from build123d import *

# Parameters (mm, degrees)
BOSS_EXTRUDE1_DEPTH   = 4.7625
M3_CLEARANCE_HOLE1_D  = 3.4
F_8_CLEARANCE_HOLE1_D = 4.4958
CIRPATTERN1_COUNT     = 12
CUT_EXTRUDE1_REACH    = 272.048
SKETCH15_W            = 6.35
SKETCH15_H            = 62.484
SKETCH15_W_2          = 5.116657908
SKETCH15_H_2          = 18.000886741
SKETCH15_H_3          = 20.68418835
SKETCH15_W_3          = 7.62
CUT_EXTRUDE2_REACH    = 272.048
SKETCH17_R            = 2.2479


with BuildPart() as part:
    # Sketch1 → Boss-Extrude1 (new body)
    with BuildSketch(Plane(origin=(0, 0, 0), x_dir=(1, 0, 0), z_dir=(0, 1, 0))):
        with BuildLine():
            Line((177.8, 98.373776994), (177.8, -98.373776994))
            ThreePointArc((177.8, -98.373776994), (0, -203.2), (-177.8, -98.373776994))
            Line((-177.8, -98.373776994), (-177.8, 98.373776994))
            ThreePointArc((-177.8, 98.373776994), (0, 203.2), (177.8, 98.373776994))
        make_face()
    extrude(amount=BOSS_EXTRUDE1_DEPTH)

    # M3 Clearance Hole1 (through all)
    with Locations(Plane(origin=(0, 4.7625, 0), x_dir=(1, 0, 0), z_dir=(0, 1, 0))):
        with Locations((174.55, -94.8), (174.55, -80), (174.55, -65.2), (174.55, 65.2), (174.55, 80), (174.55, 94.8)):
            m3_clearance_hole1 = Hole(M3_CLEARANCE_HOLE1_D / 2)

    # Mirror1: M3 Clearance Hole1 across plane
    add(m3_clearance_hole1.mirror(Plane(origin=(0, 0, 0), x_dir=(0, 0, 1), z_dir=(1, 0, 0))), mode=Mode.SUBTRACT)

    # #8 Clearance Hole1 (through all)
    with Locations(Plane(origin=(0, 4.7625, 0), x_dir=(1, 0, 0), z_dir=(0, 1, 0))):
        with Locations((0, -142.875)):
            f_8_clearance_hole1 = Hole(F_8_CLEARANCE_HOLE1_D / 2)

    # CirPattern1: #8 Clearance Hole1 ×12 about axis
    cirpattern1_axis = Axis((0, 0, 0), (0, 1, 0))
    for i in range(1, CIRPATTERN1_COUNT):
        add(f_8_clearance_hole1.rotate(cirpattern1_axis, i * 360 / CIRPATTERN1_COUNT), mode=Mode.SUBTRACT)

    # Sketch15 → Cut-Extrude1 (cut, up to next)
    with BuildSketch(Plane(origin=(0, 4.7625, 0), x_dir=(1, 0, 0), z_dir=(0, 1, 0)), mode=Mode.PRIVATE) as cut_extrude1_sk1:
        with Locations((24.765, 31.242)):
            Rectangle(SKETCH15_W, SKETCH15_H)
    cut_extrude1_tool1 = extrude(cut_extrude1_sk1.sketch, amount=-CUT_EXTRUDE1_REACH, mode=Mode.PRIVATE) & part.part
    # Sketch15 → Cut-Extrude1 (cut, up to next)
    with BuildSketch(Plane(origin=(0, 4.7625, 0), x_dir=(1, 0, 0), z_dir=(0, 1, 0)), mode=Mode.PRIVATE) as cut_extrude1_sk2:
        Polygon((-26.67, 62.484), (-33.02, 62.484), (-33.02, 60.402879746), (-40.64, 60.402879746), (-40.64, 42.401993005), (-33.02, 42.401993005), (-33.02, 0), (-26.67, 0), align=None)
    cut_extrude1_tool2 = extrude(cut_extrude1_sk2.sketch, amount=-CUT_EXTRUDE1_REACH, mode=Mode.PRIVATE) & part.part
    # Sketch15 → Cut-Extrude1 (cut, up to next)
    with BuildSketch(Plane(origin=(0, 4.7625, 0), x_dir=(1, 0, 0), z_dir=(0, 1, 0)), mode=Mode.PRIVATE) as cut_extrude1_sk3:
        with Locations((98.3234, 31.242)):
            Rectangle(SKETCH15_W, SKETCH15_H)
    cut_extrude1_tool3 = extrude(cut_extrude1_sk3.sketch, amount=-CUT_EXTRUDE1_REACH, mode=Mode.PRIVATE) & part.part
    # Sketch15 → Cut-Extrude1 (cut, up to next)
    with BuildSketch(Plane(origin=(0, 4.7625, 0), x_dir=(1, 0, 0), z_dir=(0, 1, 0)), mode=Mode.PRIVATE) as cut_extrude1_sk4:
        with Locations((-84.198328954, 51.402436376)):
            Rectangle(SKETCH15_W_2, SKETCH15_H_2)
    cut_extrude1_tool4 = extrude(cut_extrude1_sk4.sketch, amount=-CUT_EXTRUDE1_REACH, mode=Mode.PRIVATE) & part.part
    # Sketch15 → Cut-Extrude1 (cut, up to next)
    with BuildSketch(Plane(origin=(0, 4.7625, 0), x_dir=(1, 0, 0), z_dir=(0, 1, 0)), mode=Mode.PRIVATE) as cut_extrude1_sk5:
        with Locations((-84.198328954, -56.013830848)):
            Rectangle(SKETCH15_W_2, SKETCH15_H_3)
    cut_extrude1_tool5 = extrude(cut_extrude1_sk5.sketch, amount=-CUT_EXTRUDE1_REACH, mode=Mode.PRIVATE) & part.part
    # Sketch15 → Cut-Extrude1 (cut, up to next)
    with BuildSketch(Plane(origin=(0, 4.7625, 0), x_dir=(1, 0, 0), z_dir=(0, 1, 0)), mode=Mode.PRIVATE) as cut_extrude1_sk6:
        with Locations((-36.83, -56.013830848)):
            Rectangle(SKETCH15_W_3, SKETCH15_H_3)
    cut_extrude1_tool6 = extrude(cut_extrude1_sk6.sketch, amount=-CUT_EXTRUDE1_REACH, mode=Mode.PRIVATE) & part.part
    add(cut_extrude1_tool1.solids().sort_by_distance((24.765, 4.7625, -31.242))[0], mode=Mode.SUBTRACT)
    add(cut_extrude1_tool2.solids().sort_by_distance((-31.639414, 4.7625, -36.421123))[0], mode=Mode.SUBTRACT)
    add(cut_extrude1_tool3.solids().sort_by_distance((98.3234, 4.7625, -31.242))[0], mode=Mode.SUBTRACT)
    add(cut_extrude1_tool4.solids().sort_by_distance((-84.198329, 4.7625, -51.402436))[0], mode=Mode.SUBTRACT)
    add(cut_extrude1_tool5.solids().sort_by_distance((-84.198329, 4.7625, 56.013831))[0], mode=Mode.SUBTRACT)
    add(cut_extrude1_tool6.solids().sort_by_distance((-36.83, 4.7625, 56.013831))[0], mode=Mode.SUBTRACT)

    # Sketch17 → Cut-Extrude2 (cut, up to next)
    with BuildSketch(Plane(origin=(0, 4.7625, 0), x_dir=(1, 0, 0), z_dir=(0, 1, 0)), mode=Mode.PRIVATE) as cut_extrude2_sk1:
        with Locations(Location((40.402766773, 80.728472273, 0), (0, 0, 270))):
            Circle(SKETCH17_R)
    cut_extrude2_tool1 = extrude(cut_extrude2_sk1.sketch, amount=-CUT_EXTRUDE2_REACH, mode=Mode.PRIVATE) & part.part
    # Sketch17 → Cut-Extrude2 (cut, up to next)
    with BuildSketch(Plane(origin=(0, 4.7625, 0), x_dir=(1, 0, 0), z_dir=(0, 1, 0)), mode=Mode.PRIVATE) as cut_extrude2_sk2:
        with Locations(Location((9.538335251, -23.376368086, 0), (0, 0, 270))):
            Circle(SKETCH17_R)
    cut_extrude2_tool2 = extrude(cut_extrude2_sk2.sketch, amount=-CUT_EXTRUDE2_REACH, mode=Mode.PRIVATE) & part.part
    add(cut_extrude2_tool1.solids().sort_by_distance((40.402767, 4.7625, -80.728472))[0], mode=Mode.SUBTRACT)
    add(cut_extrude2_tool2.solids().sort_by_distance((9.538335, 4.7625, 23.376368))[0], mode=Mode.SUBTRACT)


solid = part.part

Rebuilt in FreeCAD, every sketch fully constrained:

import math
import FreeCAD as App
import Part
import Sketcher

V = App.Vector
Q = App.Units.Quantity


def add_polygon(sketch, points):
    """Adds a closed chain of lines whose ends are joined by coincident constraints."""
    first, n = sketch.GeometryCount, len(points)
    for a, b in zip(points, points[1:] + points[:1]):
        sketch.addGeometry(Part.LineSegment(App.Vector(*a, 0), App.Vector(*b, 0)), False)
    for i in range(n):
        sketch.addConstraint(Sketcher.Constraint("Coincident", first + i, 2, first + (i + 1) % n, 1))

doc = App.newDocument("Part")
body = doc.addObject("PartDesign::Body", "Body")

sketch1 = body.newObject("Sketcher::SketchObject", "Sketch")
sketch1.AttachmentSupport = (doc.getObject("XZ_Plane"), [""])
sketch1.MapMode = "FlatFace"
sketch1.addGeometry([
    Part.LineSegment(V(177.8, 98.373777, 0), V(177.8, -98.373777, 0)),
    Part.ArcOfCircle(Part.Circle(V(0, 0, 0), V(0, 0, 1), 203.2), math.radians(-151.044976), math.radians(-28.955024)),
    Part.LineSegment(V(-177.8, -98.373777, 0), V(-177.8, 98.373777, 0)),
    Part.ArcOfCircle(Part.Circle(V(0, 0, 0), V(0, 0, 1), 203.2), math.radians(28.955024), math.radians(151.044976)),
], False)
sketch1.addConstraint([
    Sketcher.Constraint("Coincident", 0, 2, 1, 2),
    Sketcher.Constraint("Coincident", 1, 1, 2, 1),
    Sketcher.Constraint("Coincident", 2, 2, 3, 2),
    Sketcher.Constraint("Coincident", 3, 1, 0, 1),
    Sketcher.Constraint("Vertical", 0),
    Sketcher.Constraint("Vertical", 2),
    Sketcher.Constraint("Coincident", 1, 3, -1, 1),
    Sketcher.Constraint("Coincident", 3, 3, -1, 1),
    Sketcher.Constraint("Equal", 1, 3),
    Sketcher.Constraint("Horizontal", 0, 2, 1, 1),
    Sketcher.Constraint("Radius", 1, Q("8 in")),
    Sketcher.Constraint("DistanceX", -1, 1, 0, 2, Q("7 in")),
])
pad1 = body.newObject("PartDesign::Pad", "Pad")
pad1.Profile = sketch1
pad1.Length = Q("0.1875 in")
pad1.Reversed = True

sketch2 = body.newObject("Sketcher::SketchObject", "Sketch001")
sketch2.AttachmentSupport = (doc.getObject("XZ_Plane"), [""])
sketch2.MapMode = "FlatFace"
sketch2.AttachmentOffset = App.Placement(V(0, 0, -0.1875 * 25.4), App.Rotation())
sketch2.addGeometry([
    Part.Circle(V(174.55, 94.8, 0), V(0, 0, 1), 1.7),
    Part.Circle(V(174.55, 80, 0), V(0, 0, 1), 1.7),
    Part.Circle(V(174.55, 65.2, 0), V(0, 0, 1), 1.7),
    Part.Circle(V(174.55, -65.2, 0), V(0, 0, 1), 1.7),
    Part.Circle(V(174.55, -80, 0), V(0, 0, 1), 1.7),
    Part.Circle(V(174.55, -94.8, 0), V(0, 0, 1), 1.7),
], False)
sketch2.addConstraint([
    Sketcher.Constraint("Equal", 0, 1),
    Sketcher.Constraint("Equal", 1, 2),
    Sketcher.Constraint("Equal", 2, 3),
    Sketcher.Constraint("Equal", 3, 4),
    Sketcher.Constraint("Equal", 4, 5),
    Sketcher.Constraint("Symmetric", 2, 3, 3, 3, -1),
    Sketcher.Constraint("Symmetric", 1, 3, 4, 3, -1),
    Sketcher.Constraint("Symmetric", 0, 3, 5, 3, -1),
    Sketcher.Constraint("Vertical", 0, 3, 1, 3),
    Sketcher.Constraint("Vertical", 1, 3, 2, 3),
    Sketcher.Constraint("Diameter", 0, Q("3.4 mm")),
    Sketcher.Constraint("DistanceX", -1, 1, 0, 3, Q("174.55 mm")),
    Sketcher.Constraint("DistanceY", -1, 1, 0, 3, Q("94.8 mm")),
    Sketcher.Constraint("DistanceY", -1, 1, 1, 3, Q("80 mm")),
    Sketcher.Constraint("DistanceY", -1, 1, 2, 3, Q("65.2 mm")),
])
doc.recompute()
hole = body.newObject("PartDesign::Hole", "Hole")
hole.Profile = sketch2
hole.ThreadType = "None"
hole.Diameter = 3.4
hole.DepthType = "ThroughAll"
hole.Reversed = True
doc.recompute()

mirrored = body.newObject("PartDesign::Mirrored", "Mirrored")
mirrored.Originals = [hole]
mirrored.MirrorPlane = (doc.getObject("YZ_Plane"), [""])
body.Tip = mirrored

sketch3 = body.newObject("Sketcher::SketchObject", "Sketch002")
sketch3.AttachmentSupport = (doc.getObject("XZ_Plane"), [""])
sketch3.MapMode = "FlatFace"
sketch3.AttachmentOffset = App.Placement(V(0, 0, -0.1875 * 25.4), App.Rotation())
sketch3.addGeometry(Part.Circle(V(0, 142.875, 0), V(0, 0, 1), 2.2479), False)
sketch3.addConstraint([
    Sketcher.Constraint("PointOnObject", 0, 3, -2),
    Sketcher.Constraint("Diameter", 0, Q("0.177 in")),
    Sketcher.Constraint("DistanceY", -1, 1, 0, 3, Q("5.625 in")),
])
doc.recompute()
hole2 = body.newObject("PartDesign::Hole", "Hole001")
hole2.Profile = sketch3
hole2.ThreadType = "None"
hole2.Diameter = Q("0.177 in")
hole2.DepthType = "ThroughAll"
hole2.Reversed = True
doc.recompute()

polarpattern = body.newObject("PartDesign::PolarPattern", "PolarPattern")
polarpattern.Originals = [hole2]
polarpattern.Axis = (doc.getObject("Y_Axis"), [""])
polarpattern.Angle = 360
polarpattern.Occurrences = 12
body.Tip = polarpattern

sketch4 = body.newObject("Sketcher::SketchObject", "Sketch003")
sketch4.AttachmentSupport = (doc.getObject("XZ_Plane"), [""])
sketch4.MapMode = "FlatFace"
sketch4.AttachmentOffset = App.Placement(V(0, 0, -0.1875 * 25.4), App.Rotation())
add_polygon(sketch4, [(21.59, -62.484), (21.59, 0), (27.94, 0), (27.94, -62.484)])
sketch4.addConstraint([
    Sketcher.Constraint("Vertical", 0),
    Sketcher.Constraint("Horizontal", 1),
    Sketcher.Constraint("Vertical", 2),
    Sketcher.Constraint("Horizontal", 3),
    Sketcher.Constraint("PointOnObject", 0, 2, -1),
    Sketcher.Constraint("DistanceX", 1, 1, 1, 2, Q("0.25 in")),
    Sketcher.Constraint("DistanceY", 0, 1, 0, 2, Q("2.46 in")),
    Sketcher.Constraint("DistanceX", -1, 1, 1, 2, Q("1.1 in")),
])
pocket1 = body.newObject("PartDesign::Pocket", "Pocket")
pocket1.Profile = sketch4
pocket1.Type = "UpToFirst"
pocket1.Reversed = True

sketch5 = body.newObject("Sketcher::SketchObject", "Sketch004")
sketch5.AttachmentSupport = (doc.getObject("XZ_Plane"), [""])
sketch5.MapMode = "FlatFace"
sketch5.AttachmentOffset = App.Placement(V(0, 0, -0.1875 * 25.4), App.Rotation())
add_polygon(sketch5, [(-26.67, -62.484), (-33.02, -62.484), (-33.02, -60.40288), (-40.64, -60.40288), (-40.64, -42.401993), (-33.02, -42.401993), (-33.02, 0), (-26.67, 0)])
sketch5.addConstraint([
    Sketcher.Constraint("Horizontal", 0),
    Sketcher.Constraint("Vertical", 1),
    Sketcher.Constraint("Horizontal", 2),
    Sketcher.Constraint("Vertical", 3),
    Sketcher.Constraint("Horizontal", 4),
    Sketcher.Constraint("Vertical", 5),
    Sketcher.Constraint("Horizontal", 6),
    Sketcher.Constraint("Vertical", 7),
    Sketcher.Constraint("PointOnObject", 5, 2, -1),
    Sketcher.Constraint("Vertical", 1, 2, 4, 2),
    Sketcher.Constraint("DistanceX", 2, 2, 2, 1, Q("0.3 in")),
    Sketcher.Constraint("DistanceX", 0, 2, 0, 1, Q("0.25 in")),
    Sketcher.Constraint("DistanceY", 7, 2, 7, 1, Q("2.46 in")),
    Sketcher.Constraint("DistanceX", 0, 2, -1, 1, Q("1.3 in")),
    Sketcher.Constraint("DistanceY", 1, 1, 1, 2, Q("2.08112 mm")),
    Sketcher.Constraint("DistanceY", 3, 1, 3, 2, Q("18.000887 mm")),
])
pocket2 = body.newObject("PartDesign::Pocket", "Pocket001")
pocket2.Profile = sketch5
pocket2.Type = "UpToFirst"
pocket2.Reversed = True

sketch6 = body.newObject("Sketcher::SketchObject", "Sketch005")
sketch6.AttachmentSupport = (doc.getObject("XZ_Plane"), [""])
sketch6.MapMode = "FlatFace"
sketch6.AttachmentOffset = App.Placement(V(0, 0, -0.1875 * 25.4), App.Rotation())
add_polygon(sketch6, [(95.1484, -62.484), (95.1484, 0), (101.4984, 0), (101.4984, -62.484)])
sketch6.addConstraint([
    Sketcher.Constraint("Vertical", 0),
    Sketcher.Constraint("Horizontal", 1),
    Sketcher.Constraint("Vertical", 2),
    Sketcher.Constraint("Horizontal", 3),
    Sketcher.Constraint("PointOnObject", 0, 2, -1),
    Sketcher.Constraint("DistanceX", 1, 1, 1, 2, Q("0.25 in")),
    Sketcher.Constraint("DistanceY", 0, 1, 0, 2, Q("2.46 in")),
    Sketcher.Constraint("DistanceX", -1, 1, 0, 2, Q("3.746 in")),
])
pocket3 = body.newObject("PartDesign::Pocket", "Pocket002")
pocket3.Profile = sketch6
pocket3.Type = "UpToFirst"
pocket3.Reversed = True

sketch7 = body.newObject("Sketcher::SketchObject", "Sketch006")
sketch7.AttachmentSupport = (doc.getObject("XZ_Plane"), [""])
sketch7.MapMode = "FlatFace"
sketch7.AttachmentOffset = App.Placement(V(0, 0, -0.1875 * 25.4), App.Rotation())
add_polygon(sketch7, [(-86.756658, -60.40288), (-86.756658, -42.401993), (-81.64, -42.401993), (-81.64, -60.40288)])
sketch7.addConstraint([
    Sketcher.Constraint("Vertical", 0),
    Sketcher.Constraint("Horizontal", 1),
    Sketcher.Constraint("Vertical", 2),
    Sketcher.Constraint("Horizontal", 3),
    Sketcher.Constraint("DistanceX", 1, 2, -1, 1, Q("81.64 mm")),
    Sketcher.Constraint("DistanceX", 1, 1, 1, 2, Q("5.116658 mm")),
    Sketcher.Constraint("DistanceY", 0, 1, 0, 2, Q("18.000887 mm")),
    Sketcher.Constraint("DistanceY", 2, 2, -1, 1, Q("60.40288 mm")),
])
pocket4 = body.newObject("PartDesign::Pocket", "Pocket003")
pocket4.Profile = sketch7
pocket4.Type = "UpToFirst"
pocket4.Reversed = True

sketch8 = body.newObject("Sketcher::SketchObject", "Sketch007")
sketch8.AttachmentSupport = (doc.getObject("XZ_Plane"), [""])
sketch8.MapMode = "FlatFace"
sketch8.AttachmentOffset = App.Placement(V(0, 0, -0.1875 * 25.4), App.Rotation())
add_polygon(sketch8, [(-86.756658, 45.671737), (-86.756658, 66.355925), (-81.64, 66.355925), (-81.64, 45.671737)])
sketch8.addConstraint([
    Sketcher.Constraint("Vertical", 0),
    Sketcher.Constraint("Horizontal", 1),
    Sketcher.Constraint("Vertical", 2),
    Sketcher.Constraint("Horizontal", 3),
    Sketcher.Constraint("DistanceY", -1, 1, 2, 2, Q("1.7980999 in")),
    Sketcher.Constraint("DistanceY", 0, 1, 0, 2, Q("20.684188 mm")),
    Sketcher.Constraint("DistanceX", 1, 2, -1, 1, Q("81.64 mm")),
    Sketcher.Constraint("DistanceX", 1, 1, 1, 2, Q("5.116658 mm")),
])
pocket5 = body.newObject("PartDesign::Pocket", "Pocket004")
pocket5.Profile = sketch8
pocket5.Type = "UpToFirst"
pocket5.Reversed = True

sketch9 = body.newObject("Sketcher::SketchObject", "Sketch008")
sketch9.AttachmentSupport = (doc.getObject("XZ_Plane"), [""])
sketch9.MapMode = "FlatFace"
sketch9.AttachmentOffset = App.Placement(V(0, 0, -0.1875 * 25.4), App.Rotation())
add_polygon(sketch9, [(-40.64, 45.671737), (-40.64, 66.355925), (-33.02, 66.355925), (-33.02, 45.671737)])
sketch9.addConstraint([
    Sketcher.Constraint("Vertical", 0),
    Sketcher.Constraint("Horizontal", 1),
    Sketcher.Constraint("Vertical", 2),
    Sketcher.Constraint("Horizontal", 3),
    Sketcher.Constraint("DistanceX", 1, 1, 1, 2, Q("0.3 in")),
    Sketcher.Constraint("DistanceX", 0, 2, -1, 1, Q("1.6 in")),
    Sketcher.Constraint("DistanceY", -1, 1, 2, 2, Q("1.7980999 in")),
    Sketcher.Constraint("DistanceY", 0, 1, 0, 2, Q("20.684188 mm")),
])
pocket6 = body.newObject("PartDesign::Pocket", "Pocket005")
pocket6.Profile = sketch9
pocket6.Type = "UpToFirst"
pocket6.Reversed = True

sketch10 = body.newObject("Sketcher::SketchObject", "Sketch009")
sketch10.AttachmentSupport = (doc.getObject("XZ_Plane"), [""])
sketch10.MapMode = "FlatFace"
sketch10.AttachmentOffset = App.Placement(V(0, 0, -0.1875 * 25.4), App.Rotation())
sketch10.addGeometry(Part.Circle(V(40.402767, -80.728472, 0), V(0, 0, 1), 2.2479), False)
sketch10.addConstraint([
    Sketcher.Constraint("Diameter", 0, Q("0.177 in")),
    Sketcher.Constraint("DistanceX", -1, 1, 0, 3, Q("40.402767 mm")),
    Sketcher.Constraint("DistanceY", 0, 3, -1, 1, Q("80.728472 mm")),
])
pocket7 = body.newObject("PartDesign::Pocket", "Pocket006")
pocket7.Profile = sketch10
pocket7.Type = "UpToFirst"
pocket7.Reversed = True

sketch11 = body.newObject("Sketcher::SketchObject", "Sketch010")
sketch11.AttachmentSupport = (doc.getObject("XZ_Plane"), [""])
sketch11.MapMode = "FlatFace"
sketch11.AttachmentOffset = App.Placement(V(0, 0, -0.1875 * 25.4), App.Rotation())
sketch11.addGeometry(Part.Circle(V(9.538335, 23.376368, 0), V(0, 0, 1), 2.2479), False)
sketch11.addConstraint([
    Sketcher.Constraint("Diameter", 0, Q("0.177 in")),
    Sketcher.Constraint("DistanceY", -1, 1, 0, 3, Q("23.376368 mm")),
    Sketcher.Constraint("DistanceX", -1, 1, 0, 3, Q("9.538335 mm")),
])
pocket8 = body.newObject("PartDesign::Pocket", "Pocket007")
pocket8.Profile = sketch11
pocket8.Type = "UpToFirst"
pocket8.Reversed = True

doc.recompute()
